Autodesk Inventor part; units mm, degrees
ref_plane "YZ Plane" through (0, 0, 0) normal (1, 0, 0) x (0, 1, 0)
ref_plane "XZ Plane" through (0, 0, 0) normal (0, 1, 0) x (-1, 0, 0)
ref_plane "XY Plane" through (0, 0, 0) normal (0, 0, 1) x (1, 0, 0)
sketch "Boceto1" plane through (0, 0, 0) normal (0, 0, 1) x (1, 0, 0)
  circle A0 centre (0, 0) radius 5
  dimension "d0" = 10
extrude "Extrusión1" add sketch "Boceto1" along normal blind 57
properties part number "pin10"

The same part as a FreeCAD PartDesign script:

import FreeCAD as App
import Part
import Sketcher
from FreeCAD import Vector
Q = App.Units.Quantity

doc = App.newDocument("Part")
body = doc.addObject("PartDesign::Body", "Body")

sketch1 = body.newObject("Sketcher::SketchObject", "Sketch")
sketch1.AttachmentSupport = (doc.getObject("XY_Plane"), [""])
sketch1.MapMode = "FlatFace"
sketch1.addGeometry(Part.Circle(Vector(0, 0, 0), Vector(0, 0, 1), 5), False)
sketch1.addConstraint(Sketcher.Constraint("Coincident", 0, 3, -1, 1))
sketch1.addConstraint(Sketcher.Constraint("Diameter", 0, Q("10 mm")))
pad1 = body.newObject("PartDesign::Pad", "Pad")
pad1.Profile = sketch1
pad1.Length = 57

doc.recompute()
